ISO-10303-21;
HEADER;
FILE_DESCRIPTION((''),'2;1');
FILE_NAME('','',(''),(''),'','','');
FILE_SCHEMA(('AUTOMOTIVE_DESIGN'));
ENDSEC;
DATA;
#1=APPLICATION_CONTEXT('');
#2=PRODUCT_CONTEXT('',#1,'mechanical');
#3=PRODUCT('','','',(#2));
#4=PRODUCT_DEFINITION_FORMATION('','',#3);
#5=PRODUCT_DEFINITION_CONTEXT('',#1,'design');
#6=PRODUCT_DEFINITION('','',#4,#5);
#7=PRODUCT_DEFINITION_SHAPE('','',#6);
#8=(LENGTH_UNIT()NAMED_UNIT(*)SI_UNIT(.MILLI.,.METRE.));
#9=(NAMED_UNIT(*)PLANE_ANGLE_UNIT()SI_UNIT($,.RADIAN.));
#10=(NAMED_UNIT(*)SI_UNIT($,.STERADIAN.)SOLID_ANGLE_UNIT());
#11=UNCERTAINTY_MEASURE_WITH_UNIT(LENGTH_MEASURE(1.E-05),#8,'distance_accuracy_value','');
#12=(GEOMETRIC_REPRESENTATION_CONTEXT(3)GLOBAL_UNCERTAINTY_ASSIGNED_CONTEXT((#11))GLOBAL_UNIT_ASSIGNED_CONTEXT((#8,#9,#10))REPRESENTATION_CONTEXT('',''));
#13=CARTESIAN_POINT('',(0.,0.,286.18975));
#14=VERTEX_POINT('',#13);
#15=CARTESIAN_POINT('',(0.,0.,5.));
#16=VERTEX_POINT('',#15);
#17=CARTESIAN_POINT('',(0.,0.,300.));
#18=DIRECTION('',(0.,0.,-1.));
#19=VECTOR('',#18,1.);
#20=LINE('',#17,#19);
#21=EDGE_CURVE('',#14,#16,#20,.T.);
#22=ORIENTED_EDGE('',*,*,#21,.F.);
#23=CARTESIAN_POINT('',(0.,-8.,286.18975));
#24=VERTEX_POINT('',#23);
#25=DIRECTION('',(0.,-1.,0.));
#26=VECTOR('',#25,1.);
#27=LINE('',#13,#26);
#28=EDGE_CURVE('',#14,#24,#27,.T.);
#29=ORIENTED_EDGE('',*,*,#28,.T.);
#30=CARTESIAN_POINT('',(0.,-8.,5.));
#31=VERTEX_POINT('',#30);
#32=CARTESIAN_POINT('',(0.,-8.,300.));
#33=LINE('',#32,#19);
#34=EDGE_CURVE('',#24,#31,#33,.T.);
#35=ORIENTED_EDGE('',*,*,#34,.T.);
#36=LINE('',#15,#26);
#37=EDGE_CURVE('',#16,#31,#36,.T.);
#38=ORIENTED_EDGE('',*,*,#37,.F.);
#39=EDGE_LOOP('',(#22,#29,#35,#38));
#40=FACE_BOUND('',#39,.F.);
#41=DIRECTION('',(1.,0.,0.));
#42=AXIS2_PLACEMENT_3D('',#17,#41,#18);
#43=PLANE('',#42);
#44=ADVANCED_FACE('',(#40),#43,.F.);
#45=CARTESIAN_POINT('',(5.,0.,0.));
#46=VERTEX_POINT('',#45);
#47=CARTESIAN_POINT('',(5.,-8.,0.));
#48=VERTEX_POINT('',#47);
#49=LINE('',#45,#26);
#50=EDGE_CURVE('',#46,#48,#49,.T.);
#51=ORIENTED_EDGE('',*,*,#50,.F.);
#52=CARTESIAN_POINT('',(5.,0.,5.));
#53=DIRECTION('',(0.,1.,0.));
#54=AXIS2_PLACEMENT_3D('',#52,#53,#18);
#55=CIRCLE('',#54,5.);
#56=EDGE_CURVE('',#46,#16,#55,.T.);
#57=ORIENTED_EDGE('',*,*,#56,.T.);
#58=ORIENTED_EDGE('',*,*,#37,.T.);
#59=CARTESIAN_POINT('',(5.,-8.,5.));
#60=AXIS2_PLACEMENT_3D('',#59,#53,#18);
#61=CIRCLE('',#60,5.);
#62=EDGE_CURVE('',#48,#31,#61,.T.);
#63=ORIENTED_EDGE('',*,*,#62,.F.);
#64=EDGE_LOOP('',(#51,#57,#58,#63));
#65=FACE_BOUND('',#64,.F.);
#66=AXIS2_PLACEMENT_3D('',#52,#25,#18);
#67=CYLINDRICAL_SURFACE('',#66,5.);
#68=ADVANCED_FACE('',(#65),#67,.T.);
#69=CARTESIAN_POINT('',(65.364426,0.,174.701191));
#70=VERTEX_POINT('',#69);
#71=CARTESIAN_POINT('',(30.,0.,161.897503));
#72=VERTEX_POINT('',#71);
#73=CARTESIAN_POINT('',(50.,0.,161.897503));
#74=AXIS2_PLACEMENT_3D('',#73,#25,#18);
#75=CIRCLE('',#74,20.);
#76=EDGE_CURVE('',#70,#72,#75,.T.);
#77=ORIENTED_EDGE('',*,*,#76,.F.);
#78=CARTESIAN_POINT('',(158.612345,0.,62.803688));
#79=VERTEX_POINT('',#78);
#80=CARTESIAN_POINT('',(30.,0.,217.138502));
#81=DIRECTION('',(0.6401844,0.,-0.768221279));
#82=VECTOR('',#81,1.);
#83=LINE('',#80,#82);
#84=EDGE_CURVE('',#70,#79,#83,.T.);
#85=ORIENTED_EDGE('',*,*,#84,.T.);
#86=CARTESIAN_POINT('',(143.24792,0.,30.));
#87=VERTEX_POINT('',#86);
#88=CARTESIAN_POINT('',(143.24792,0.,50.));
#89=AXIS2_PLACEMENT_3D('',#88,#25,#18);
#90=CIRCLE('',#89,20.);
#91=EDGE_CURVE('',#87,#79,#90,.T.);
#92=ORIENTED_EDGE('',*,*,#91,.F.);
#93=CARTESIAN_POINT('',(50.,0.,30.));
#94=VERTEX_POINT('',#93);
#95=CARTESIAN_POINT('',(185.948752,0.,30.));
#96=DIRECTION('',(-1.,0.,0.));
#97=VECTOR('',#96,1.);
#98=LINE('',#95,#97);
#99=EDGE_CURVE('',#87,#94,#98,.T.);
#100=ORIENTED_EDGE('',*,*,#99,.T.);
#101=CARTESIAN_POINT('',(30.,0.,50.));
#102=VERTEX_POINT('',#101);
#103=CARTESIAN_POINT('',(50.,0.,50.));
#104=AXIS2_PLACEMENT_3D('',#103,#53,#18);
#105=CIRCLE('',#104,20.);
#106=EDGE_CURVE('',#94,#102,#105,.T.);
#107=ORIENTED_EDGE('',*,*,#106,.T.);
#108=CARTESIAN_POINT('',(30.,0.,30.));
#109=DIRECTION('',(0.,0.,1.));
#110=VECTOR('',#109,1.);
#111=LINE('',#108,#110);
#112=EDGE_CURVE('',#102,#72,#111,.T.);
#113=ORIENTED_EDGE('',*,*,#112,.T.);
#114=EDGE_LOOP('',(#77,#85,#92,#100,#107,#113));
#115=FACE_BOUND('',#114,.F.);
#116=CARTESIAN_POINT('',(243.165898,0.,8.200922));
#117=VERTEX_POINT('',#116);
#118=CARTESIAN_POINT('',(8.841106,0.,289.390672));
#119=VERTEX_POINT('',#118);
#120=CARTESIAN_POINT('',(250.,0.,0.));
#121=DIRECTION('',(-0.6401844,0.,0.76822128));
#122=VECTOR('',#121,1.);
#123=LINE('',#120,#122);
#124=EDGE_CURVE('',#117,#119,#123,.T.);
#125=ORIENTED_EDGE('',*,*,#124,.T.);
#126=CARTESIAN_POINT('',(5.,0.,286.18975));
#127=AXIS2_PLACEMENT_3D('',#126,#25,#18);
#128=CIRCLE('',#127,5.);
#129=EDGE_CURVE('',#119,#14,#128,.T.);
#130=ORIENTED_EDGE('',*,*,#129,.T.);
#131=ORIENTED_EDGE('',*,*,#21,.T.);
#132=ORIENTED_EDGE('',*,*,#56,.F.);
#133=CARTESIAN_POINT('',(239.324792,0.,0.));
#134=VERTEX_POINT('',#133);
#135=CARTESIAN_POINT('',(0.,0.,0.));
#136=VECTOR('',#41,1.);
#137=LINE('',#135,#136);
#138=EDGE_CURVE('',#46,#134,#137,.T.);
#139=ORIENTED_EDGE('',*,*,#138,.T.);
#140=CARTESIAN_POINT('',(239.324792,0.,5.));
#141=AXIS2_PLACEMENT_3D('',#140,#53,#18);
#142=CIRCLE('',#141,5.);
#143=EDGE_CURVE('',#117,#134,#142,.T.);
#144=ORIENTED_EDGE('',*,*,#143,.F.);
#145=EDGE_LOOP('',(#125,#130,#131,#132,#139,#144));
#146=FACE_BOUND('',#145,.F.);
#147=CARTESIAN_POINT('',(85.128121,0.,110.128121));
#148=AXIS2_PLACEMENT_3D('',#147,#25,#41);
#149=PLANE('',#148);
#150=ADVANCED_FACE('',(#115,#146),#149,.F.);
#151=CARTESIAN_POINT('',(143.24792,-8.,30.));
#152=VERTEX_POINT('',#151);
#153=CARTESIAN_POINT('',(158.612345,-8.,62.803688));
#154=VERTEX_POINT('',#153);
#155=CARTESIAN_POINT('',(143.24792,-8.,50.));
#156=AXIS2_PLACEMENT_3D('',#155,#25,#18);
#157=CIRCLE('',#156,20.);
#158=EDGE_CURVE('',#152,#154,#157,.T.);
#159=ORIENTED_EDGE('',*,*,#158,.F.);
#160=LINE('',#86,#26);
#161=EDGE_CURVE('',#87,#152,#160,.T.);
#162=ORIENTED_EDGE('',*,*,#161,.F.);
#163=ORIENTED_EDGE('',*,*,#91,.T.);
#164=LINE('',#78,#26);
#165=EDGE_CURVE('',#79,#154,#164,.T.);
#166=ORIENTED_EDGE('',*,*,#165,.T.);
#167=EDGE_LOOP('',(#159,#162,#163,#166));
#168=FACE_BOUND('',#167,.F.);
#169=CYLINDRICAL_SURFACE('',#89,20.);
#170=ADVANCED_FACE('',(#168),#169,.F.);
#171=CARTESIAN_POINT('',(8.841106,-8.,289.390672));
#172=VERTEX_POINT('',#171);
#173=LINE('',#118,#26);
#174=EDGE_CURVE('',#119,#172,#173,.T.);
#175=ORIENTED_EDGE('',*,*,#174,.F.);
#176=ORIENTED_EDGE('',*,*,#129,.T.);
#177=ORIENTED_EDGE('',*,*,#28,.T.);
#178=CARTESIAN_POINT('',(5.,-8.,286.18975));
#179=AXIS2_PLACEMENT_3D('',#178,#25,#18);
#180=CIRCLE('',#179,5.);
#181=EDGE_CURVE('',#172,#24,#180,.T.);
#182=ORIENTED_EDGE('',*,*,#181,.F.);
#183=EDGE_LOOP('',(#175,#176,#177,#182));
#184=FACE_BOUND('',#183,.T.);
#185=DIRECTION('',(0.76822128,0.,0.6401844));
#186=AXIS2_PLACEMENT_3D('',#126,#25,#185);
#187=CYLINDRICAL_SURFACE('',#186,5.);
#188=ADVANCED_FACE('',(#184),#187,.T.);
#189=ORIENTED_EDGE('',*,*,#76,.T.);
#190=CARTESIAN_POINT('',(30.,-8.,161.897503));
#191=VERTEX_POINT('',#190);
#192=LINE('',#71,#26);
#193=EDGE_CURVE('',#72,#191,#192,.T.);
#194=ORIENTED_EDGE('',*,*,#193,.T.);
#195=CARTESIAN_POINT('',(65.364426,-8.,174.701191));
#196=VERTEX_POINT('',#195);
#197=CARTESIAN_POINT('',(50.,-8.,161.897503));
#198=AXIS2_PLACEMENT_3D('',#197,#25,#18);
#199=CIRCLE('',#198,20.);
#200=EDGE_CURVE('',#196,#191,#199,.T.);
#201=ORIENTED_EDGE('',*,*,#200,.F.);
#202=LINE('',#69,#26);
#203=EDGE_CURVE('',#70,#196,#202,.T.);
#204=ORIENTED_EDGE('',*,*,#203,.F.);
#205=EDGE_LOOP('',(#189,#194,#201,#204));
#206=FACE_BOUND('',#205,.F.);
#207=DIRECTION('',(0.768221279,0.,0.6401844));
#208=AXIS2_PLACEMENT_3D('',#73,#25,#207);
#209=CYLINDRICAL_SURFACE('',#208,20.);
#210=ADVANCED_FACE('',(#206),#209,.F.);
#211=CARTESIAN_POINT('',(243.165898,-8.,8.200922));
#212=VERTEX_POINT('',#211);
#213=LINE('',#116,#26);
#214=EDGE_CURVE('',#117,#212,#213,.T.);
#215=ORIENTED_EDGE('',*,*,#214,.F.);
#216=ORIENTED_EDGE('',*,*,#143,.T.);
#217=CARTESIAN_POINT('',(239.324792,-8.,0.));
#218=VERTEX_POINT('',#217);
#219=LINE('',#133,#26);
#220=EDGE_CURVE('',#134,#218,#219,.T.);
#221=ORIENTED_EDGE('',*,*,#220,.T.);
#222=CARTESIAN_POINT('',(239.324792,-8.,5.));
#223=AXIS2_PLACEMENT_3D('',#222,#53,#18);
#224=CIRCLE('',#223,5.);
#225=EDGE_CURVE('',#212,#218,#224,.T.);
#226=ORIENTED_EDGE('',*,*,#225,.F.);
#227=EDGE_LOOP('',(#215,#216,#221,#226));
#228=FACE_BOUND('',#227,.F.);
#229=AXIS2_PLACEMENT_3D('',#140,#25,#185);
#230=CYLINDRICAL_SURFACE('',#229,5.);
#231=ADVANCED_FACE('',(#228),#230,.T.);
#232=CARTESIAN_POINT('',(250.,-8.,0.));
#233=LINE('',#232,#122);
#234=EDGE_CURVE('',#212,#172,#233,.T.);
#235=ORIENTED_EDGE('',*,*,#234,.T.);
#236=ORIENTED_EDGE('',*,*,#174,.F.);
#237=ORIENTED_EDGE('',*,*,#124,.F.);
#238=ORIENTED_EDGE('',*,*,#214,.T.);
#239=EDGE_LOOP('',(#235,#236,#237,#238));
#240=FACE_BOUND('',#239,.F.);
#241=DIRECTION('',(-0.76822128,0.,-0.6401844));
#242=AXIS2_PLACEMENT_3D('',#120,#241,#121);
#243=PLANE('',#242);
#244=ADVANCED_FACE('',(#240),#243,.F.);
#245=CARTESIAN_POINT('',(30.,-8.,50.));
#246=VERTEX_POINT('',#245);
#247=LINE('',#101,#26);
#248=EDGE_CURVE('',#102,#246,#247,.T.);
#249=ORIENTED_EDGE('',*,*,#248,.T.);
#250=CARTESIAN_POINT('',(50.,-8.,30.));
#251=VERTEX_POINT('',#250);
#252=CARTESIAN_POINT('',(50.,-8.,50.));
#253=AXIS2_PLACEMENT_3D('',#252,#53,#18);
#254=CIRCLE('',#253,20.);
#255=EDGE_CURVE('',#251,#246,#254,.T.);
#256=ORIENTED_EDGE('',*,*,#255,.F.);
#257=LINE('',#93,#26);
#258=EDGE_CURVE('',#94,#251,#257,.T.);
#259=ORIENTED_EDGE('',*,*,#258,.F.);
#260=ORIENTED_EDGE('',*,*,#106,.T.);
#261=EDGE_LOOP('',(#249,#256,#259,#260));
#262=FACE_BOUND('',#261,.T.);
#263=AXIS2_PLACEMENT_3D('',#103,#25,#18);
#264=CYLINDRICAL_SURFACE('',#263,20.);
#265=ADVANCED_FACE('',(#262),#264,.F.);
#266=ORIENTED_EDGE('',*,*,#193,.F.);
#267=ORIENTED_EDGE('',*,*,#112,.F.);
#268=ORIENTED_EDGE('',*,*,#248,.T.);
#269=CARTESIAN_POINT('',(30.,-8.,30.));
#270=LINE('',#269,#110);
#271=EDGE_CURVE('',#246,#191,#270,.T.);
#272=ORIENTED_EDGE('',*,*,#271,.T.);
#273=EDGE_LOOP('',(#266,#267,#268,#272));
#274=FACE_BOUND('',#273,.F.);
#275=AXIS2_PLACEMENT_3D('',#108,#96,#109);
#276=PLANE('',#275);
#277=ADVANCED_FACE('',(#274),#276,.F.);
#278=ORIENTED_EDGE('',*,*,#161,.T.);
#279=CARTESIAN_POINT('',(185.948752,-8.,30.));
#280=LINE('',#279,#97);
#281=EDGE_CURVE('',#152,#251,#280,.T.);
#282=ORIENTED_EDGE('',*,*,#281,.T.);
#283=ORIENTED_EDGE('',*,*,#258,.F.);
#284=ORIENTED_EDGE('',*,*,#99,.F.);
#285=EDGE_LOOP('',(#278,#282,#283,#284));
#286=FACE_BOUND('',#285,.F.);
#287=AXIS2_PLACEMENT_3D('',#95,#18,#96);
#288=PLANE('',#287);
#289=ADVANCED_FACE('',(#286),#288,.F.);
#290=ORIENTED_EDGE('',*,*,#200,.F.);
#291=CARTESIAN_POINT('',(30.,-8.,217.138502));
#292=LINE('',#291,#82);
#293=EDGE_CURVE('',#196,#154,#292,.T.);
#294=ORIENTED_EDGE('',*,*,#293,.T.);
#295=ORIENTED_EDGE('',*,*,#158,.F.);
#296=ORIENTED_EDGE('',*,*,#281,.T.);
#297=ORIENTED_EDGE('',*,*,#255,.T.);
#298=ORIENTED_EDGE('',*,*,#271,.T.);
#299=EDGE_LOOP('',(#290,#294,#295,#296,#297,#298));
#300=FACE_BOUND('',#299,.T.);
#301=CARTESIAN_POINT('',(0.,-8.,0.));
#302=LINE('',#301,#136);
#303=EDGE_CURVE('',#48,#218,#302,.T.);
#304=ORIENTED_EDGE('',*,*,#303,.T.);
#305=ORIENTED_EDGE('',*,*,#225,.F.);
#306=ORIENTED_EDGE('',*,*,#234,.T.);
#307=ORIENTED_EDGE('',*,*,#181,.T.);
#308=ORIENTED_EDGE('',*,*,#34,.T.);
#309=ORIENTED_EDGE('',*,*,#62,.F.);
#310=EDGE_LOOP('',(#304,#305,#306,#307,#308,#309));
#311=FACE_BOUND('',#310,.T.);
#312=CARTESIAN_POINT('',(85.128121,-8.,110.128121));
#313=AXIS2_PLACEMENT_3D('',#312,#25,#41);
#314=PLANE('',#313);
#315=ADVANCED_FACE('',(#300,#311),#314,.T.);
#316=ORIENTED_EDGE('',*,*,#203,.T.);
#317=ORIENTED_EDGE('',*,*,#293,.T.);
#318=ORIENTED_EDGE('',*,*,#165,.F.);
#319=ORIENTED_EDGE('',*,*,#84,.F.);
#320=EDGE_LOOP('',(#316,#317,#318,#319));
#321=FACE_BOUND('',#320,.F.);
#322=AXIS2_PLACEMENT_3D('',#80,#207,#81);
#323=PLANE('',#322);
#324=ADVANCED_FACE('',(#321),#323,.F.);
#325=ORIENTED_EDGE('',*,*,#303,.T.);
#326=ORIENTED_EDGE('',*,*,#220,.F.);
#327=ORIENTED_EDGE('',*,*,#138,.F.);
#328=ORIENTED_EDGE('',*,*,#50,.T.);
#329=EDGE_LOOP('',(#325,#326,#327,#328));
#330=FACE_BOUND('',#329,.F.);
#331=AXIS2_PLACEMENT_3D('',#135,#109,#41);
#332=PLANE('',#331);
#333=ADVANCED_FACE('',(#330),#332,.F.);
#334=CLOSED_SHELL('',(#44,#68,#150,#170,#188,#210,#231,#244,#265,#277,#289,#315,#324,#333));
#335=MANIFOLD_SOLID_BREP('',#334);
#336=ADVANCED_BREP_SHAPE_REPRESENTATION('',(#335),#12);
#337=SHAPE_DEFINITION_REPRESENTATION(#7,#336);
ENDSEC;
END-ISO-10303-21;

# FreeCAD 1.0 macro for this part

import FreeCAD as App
import Part
import Sketcher
from FreeCAD import Vector


def edges_at(feature, points):
    """Names of the edges that pass closest to the given points."""
    edges = feature.Shape.Edges
    near = lambda p: min(range(len(edges)), key=lambda i: edges[i].distToShape(Part.Vertex(*p))[0])
    return sorted({f"Edge{near(p) + 1}" for p in points})

doc = App.newDocument("Part")
body = doc.addObject("PartDesign::Body", "Body")

sketch1 = doc.addObject("Sketcher::SketchObject", "Sketch")
body.addObject(sketch1)
sketch1.AttachmentSupport = (doc.XZ_Plane, [""])
sketch1.MapMode = "FlatFace"
sketch1.addGeometry([
    Part.LineSegment(Vector(250, 0, 0), Vector(0, 300, 0)),
    Part.LineSegment(Vector(0, 300, 0), Vector(0, 0, 0)),
    Part.LineSegment(Vector(0, 0, 0), Vector(250, 0, 0)),
    Part.LineSegment(Vector(186, 30, 0), Vector(30, 30, 0)),
    Part.LineSegment(Vector(30, 30, 0), Vector(30, 217, 0)),
    Part.LineSegment(Vector(30, 217, 0), Vector(186, 30, 0)),
], False)
sketch1.addConstraint([
    Sketcher.Constraint("Coincident", 0, 2, 1, 1),
    Sketcher.Constraint("Coincident", 1, 2, 2, 1),
    Sketcher.Constraint("Coincident", 2, 2, 0, 1),
    Sketcher.Constraint("Coincident", 3, 2, 4, 1),
    Sketcher.Constraint("Coincident", 4, 2, 5, 1),
    Sketcher.Constraint("Coincident", 5, 2, 3, 1),
    Sketcher.Constraint("Vertical", 1),
    Sketcher.Constraint("Horizontal", 2),
    Sketcher.Constraint("Horizontal", 3),
    Sketcher.Constraint("Vertical", 4),
    Sketcher.Constraint("Coincident", 1, 2, -1, 1),
    Sketcher.Constraint("Parallel", 0, 5),
    Sketcher.Constraint("DistanceX", 2, 1, 2, 2, 250.0),
    Sketcher.Constraint("DistanceY", 1, 2, 1, 1, 300.0),
    Sketcher.Constraint("DistanceX", -1, 1, 3, 2, 30.0),
    Sketcher.Constraint("DistanceY", -1, 1, 3, 2, 30.0),
    Sketcher.Constraint("DistanceY", 4, 1, 4, 2, 187.138502),
])
pad1 = doc.addObject("PartDesign::Pad", "Pad")
body.addObject(pad1)
pad1.Profile = sketch1
pad1.Length = 8
doc.recompute()

fillet = doc.addObject("PartDesign::Fillet", "Fillet")
body.addObject(fillet)
fillet.Base = (pad1, edges_at(pad1, [(30, -4, 30), (185.949, -4, 30), (30, -4, 217.139)]))
fillet.Radius = 20
doc.recompute()

fillet2 = doc.addObject("PartDesign::Fillet", "Fillet001")
body.addObject(fillet2)
fillet2.Base = (fillet, edges_at(fillet, [(250, -4, 0), (0, -4, 300), (0, -4, 0)]))
fillet2.Radius = 5

doc.recompute()
